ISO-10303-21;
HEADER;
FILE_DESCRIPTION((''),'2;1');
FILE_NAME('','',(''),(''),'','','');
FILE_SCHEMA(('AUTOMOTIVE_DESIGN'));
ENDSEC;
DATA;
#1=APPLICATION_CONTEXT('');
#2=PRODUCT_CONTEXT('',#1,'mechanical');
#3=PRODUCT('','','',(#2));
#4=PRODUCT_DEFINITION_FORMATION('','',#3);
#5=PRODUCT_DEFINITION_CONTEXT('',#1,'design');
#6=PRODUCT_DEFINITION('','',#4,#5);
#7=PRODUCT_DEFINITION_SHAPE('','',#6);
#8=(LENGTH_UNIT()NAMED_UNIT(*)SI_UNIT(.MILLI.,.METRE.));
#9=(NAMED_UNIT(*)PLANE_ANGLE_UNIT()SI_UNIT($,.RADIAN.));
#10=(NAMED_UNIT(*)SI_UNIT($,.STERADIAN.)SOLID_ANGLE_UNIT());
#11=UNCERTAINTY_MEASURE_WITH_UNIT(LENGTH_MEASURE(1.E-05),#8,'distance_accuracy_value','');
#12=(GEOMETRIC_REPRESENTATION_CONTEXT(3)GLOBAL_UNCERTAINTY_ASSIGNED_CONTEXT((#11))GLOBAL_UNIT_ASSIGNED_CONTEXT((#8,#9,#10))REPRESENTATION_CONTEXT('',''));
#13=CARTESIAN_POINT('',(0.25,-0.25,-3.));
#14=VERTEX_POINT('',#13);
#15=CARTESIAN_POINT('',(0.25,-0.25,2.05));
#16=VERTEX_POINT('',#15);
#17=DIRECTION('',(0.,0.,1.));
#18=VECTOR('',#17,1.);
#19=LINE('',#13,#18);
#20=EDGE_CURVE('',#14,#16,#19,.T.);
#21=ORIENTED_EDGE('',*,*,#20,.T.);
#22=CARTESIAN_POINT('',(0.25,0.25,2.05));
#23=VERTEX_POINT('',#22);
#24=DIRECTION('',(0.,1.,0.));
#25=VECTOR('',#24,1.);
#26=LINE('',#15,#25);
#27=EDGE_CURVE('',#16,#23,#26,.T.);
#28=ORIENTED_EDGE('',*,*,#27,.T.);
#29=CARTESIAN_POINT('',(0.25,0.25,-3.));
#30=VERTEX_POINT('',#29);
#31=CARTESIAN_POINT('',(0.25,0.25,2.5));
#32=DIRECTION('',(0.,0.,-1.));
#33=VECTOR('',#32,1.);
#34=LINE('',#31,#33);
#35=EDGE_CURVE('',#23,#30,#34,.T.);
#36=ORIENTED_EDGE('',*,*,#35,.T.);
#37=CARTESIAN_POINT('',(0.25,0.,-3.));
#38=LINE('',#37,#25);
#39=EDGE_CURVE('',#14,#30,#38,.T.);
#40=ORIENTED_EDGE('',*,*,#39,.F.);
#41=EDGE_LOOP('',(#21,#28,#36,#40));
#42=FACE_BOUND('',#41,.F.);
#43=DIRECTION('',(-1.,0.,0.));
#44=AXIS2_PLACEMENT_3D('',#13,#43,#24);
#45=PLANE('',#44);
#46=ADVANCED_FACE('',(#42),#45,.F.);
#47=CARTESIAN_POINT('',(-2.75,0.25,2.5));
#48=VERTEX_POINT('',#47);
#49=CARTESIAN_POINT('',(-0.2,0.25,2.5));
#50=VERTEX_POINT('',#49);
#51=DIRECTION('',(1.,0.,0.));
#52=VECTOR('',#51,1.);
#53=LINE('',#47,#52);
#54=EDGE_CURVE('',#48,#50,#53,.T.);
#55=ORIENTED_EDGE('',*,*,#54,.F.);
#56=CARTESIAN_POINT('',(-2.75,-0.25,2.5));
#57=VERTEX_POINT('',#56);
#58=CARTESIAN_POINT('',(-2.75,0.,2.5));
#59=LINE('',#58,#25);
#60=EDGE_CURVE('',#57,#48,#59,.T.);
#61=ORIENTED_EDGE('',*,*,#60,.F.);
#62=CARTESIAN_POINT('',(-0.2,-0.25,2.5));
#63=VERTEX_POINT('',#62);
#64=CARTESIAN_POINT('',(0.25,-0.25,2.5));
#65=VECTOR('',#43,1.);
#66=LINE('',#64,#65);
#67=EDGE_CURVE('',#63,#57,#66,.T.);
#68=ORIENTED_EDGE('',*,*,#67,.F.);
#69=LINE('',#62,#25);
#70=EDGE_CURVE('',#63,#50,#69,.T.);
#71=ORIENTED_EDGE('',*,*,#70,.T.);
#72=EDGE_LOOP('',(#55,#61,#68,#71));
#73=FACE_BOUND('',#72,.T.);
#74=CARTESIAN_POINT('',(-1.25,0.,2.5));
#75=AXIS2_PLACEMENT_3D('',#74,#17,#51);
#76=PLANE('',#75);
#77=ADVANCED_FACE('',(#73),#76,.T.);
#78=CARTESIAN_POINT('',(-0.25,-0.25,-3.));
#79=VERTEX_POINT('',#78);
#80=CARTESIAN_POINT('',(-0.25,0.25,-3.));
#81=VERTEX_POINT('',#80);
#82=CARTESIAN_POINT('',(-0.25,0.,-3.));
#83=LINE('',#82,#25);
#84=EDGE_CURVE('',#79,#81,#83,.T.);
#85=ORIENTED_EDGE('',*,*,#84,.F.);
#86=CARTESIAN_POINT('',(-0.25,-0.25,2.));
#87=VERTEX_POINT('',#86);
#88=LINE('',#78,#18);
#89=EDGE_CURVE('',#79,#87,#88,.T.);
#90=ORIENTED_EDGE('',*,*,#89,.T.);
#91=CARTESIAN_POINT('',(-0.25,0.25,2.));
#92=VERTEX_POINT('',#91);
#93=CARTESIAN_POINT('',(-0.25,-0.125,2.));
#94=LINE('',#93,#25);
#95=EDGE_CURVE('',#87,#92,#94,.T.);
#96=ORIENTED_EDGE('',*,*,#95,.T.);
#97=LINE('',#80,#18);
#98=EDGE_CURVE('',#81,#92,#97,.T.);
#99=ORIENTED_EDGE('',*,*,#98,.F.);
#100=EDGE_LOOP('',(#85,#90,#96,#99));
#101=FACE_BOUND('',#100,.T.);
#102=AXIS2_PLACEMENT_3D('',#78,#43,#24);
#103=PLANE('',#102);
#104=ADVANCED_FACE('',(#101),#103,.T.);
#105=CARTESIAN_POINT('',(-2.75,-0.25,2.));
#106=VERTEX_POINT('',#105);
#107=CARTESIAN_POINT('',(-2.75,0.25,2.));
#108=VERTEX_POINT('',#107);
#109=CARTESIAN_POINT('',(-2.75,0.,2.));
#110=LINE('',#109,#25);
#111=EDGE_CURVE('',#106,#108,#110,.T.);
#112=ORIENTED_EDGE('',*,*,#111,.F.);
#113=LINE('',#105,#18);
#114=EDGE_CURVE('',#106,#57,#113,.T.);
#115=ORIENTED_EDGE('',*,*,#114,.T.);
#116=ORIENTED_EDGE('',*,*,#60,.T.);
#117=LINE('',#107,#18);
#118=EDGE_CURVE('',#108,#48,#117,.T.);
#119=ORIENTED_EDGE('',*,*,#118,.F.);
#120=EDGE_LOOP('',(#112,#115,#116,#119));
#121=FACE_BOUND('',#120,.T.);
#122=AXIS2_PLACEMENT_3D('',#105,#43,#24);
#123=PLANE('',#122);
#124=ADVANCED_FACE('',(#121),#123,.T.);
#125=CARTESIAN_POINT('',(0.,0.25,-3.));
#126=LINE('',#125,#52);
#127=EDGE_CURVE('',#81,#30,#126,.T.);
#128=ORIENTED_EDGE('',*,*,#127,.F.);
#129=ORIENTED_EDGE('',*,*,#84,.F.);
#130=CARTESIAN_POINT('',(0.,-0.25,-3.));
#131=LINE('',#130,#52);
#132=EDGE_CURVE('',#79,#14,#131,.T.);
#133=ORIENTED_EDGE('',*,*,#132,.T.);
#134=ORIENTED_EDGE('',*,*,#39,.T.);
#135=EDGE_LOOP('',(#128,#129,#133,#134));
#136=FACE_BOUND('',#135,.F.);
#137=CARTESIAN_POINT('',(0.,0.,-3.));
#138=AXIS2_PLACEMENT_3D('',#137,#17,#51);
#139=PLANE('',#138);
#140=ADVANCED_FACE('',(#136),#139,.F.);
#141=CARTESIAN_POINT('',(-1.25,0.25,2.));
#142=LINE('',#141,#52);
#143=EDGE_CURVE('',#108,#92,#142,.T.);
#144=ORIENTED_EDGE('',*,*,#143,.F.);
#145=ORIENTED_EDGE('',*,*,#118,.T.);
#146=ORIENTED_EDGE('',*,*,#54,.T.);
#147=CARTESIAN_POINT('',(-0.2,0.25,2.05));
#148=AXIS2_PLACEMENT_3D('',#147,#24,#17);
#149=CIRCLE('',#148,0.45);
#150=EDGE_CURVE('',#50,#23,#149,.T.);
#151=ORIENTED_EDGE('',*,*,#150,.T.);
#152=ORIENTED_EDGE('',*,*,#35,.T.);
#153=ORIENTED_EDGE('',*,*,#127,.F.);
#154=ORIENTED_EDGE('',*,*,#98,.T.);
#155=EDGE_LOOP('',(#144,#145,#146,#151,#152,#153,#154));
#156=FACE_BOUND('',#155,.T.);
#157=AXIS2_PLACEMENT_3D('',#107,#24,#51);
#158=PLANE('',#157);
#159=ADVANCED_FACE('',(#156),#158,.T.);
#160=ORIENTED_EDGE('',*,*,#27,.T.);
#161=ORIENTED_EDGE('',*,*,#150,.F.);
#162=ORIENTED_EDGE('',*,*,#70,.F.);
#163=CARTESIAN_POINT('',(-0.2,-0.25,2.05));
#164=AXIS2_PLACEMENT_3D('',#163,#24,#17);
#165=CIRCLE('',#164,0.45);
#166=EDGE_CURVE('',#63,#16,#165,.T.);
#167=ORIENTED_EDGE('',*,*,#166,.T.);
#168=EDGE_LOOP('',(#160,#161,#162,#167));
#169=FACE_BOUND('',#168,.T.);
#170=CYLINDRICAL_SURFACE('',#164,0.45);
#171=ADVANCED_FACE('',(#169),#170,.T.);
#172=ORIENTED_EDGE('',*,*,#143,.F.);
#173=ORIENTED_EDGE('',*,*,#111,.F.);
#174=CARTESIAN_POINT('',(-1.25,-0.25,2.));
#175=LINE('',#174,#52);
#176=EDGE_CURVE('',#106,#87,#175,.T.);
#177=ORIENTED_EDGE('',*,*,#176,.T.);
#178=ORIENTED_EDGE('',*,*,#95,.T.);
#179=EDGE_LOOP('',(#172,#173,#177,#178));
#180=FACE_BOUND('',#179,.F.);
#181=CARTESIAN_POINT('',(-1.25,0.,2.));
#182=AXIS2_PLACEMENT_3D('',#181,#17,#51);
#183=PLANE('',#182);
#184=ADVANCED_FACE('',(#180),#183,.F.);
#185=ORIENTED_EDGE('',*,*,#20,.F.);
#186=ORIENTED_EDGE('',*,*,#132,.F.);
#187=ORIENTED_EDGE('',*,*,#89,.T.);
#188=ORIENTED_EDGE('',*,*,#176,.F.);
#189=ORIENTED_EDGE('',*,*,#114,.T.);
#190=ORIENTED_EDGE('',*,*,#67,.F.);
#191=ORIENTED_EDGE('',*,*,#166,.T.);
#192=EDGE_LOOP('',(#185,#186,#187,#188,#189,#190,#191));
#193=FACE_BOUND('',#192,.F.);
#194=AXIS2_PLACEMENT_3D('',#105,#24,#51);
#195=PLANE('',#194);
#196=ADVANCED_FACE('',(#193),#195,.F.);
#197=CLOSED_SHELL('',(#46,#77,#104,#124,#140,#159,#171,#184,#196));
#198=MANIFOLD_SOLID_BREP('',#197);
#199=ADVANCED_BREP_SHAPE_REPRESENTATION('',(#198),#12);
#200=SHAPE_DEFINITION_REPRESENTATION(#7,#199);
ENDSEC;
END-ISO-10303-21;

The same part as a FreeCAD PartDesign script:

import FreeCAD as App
import Part
import Sketcher


def edges_at(feature, points):
    """Names of the edges that pass closest to the given points."""
    edges = feature.Shape.Edges
    near = lambda p: min(range(len(edges)), key=lambda i: edges[i].distToShape(Part.Vertex(*p))[0])
    return sorted({f"Edge{near(p) + 1}" for p in points})

doc = App.newDocument("Part")
body = doc.addObject("PartDesign::Body", "Body")

sketch1 = doc.addObject("Sketcher::SketchObject", "Sketch")
body.addObject(sketch1)
sketch1.AttachmentSupport = (doc.XY_Plane, [""])
sketch1.MapMode = "FlatFace"
sketch1.AttachmentOffset = App.Placement(App.Vector(0, 0, 2), App.Rotation())
sketch1.addGeometry([
    Part.LineSegment(App.Vector(-2.8, 0.2, 0), App.Vector(-2.8, -0.2, 0)),
    Part.LineSegment(App.Vector(-2.8, -0.2, 0), App.Vector(0.2, -0.2, 0)),
    Part.LineSegment(App.Vector(0.2, -0.2, 0), App.Vector(0.2, 0.2, 0)),
    Part.LineSegment(App.Vector(0.2, 0.2, 0), App.Vector(-2.8, 0.2, 0)),
], False)
sketch1.addConstraint([
    Sketcher.Constraint("Coincident", 0, 2, 1, 1),
    Sketcher.Constraint("Coincident", 1, 2, 2, 1),
    Sketcher.Constraint("Coincident", 2, 2, 3, 1),
    Sketcher.Constraint("Coincident", 3, 2, 0, 1),
    Sketcher.Constraint("Vertical", 0),
    Sketcher.Constraint("Horizontal", 1),
    Sketcher.Constraint("Vertical", 2),
    Sketcher.Constraint("Horizontal", 3),
    Sketcher.Constraint("DistanceX", 1, 1, 1, 2, 3.0),
    Sketcher.Constraint("DistanceY", 0, 2, 0, 1, 0.5),
    Sketcher.Constraint("DistanceX", 0, 2, -1, 1, 2.75),
    Sketcher.Constraint("DistanceY", 0, 2, -1, 1, 0.25),
])
pad1 = doc.addObject("PartDesign::Pad", "Pad")
body.addObject(pad1)
pad1.Profile = sketch1
pad1.Length = 0.5
body2 = doc.addObject("PartDesign::Body", "Body001")

sketch2 = doc.addObject("Sketcher::SketchObject", "Sketch001")
body2.addObject(sketch2)
sketch2.AttachmentSupport = (doc.getObject("XY_Plane001"), [""])
sketch2.MapMode = "FlatFace"
sketch2.AttachmentOffset = App.Placement(App.Vector(0, 0, -3), App.Rotation())
sketch2.addGeometry([
    Part.LineSegment(App.Vector(-0.2, 0.2, 0), App.Vector(-0.2, -0.2, 0)),
    Part.LineSegment(App.Vector(-0.2, -0.2, 0), App.Vector(0.2, -0.2, 0)),
    Part.LineSegment(App.Vector(0.2, -0.2, 0), App.Vector(0.2, 0.2, 0)),
    Part.LineSegment(App.Vector(0.2, 0.2, 0), App.Vector(-0.2, 0.2, 0)),
], False)
sketch2.addConstraint([
    Sketcher.Constraint("Coincident", 0, 2, 1, 1),
    Sketcher.Constraint("Coincident", 1, 2, 2, 1),
    Sketcher.Constraint("Coincident", 2, 2, 3, 1),
    Sketcher.Constraint("Coincident", 3, 2, 0, 1),
    Sketcher.Constraint("Vertical", 0),
    Sketcher.Constraint("Horizontal", 1),
    Sketcher.Constraint("Vertical", 2),
    Sketcher.Constraint("Horizontal", 3),
    Sketcher.Constraint("Symmetric", 0, 2, 2, 2, -1, 1),
    Sketcher.Constraint("Equal", 3, 0),
    Sketcher.Constraint("DistanceX", 1, 1, 1, 2, 0.5),
])
pad2 = doc.addObject("PartDesign::Pad", "Pad001")
body2.addObject(pad2)
pad2.Profile = sketch2
pad2.Length = 5.5
doc.recompute()

boolean = doc.addObject("PartDesign::Boolean", "Boolean")
body2.addObject(boolean)
boolean.Type = "Fuse"
boolean.addObjects([body])
doc.recompute()

fillet = doc.addObject("PartDesign::Fillet", "Fillet")
body2.addObject(fillet)
fillet.Base = (boolean, edges_at(boolean, [(0.25, 0, 2.5)]))
fillet.Radius = 0.45

doc.recompute()
